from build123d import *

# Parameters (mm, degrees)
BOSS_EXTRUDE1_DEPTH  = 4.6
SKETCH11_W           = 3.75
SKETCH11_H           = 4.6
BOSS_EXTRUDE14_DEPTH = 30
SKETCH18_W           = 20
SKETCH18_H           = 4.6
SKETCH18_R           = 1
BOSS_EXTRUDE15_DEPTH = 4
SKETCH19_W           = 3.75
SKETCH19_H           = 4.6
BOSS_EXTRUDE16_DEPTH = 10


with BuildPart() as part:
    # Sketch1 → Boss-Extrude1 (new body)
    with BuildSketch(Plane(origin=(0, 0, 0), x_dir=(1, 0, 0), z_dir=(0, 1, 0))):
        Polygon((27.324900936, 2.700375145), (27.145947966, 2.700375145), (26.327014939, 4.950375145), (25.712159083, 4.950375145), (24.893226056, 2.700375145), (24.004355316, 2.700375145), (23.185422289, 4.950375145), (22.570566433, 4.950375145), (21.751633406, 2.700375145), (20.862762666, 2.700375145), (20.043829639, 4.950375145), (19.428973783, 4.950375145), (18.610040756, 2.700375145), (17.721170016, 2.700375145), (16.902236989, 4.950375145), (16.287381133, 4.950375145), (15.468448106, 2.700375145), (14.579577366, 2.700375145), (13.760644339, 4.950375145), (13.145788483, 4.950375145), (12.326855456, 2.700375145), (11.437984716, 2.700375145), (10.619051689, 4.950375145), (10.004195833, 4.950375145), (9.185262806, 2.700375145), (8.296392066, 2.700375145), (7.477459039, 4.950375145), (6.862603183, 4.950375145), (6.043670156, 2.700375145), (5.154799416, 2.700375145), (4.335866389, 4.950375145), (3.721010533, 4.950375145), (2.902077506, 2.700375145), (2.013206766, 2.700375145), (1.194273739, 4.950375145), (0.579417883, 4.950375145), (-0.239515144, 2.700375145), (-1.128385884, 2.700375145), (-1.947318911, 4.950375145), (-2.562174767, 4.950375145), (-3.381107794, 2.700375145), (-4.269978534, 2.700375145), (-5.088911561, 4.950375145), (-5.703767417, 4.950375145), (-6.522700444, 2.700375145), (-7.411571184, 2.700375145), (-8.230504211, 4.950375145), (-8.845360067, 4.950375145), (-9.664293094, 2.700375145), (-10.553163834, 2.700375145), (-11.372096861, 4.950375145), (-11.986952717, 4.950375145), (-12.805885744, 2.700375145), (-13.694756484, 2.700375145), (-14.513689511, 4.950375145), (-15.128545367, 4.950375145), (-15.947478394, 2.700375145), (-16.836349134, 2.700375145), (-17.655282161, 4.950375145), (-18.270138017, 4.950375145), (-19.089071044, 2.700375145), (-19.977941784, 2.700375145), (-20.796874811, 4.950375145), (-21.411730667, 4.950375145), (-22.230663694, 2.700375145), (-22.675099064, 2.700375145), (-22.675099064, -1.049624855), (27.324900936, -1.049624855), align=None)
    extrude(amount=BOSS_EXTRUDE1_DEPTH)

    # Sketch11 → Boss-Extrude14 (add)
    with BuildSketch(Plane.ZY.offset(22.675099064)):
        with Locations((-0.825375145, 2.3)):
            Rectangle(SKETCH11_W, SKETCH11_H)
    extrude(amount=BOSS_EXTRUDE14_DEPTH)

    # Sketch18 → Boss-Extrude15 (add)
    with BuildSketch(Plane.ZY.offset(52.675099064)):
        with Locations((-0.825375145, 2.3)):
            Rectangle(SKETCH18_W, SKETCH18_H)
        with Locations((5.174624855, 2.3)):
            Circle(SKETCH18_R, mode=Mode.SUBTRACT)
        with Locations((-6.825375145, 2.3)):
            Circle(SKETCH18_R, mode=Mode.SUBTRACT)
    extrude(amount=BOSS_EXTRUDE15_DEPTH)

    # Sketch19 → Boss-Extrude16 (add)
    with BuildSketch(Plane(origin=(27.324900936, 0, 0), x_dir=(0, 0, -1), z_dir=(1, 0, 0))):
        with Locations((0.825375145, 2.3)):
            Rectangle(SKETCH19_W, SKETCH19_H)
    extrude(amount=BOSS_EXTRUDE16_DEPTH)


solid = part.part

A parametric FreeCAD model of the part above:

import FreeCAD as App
import Part
import Sketcher

V = App.Vector
Q = App.Units.Quantity


def add_polygon(sketch, points):
    """Adds a closed chain of lines whose ends are joined by coincident constraints."""
    first, n = sketch.GeometryCount, len(points)
    for a, b in zip(points, points[1:] + points[:1]):
        sketch.addGeometry(Part.LineSegment(App.Vector(*a, 0), App.Vector(*b, 0)), False)
    for i in range(n):
        sketch.addConstraint(Sketcher.Constraint("Coincident", first + i, 2, first + (i + 1) % n, 1))

doc = App.newDocument("Part")
body = doc.addObject("PartDesign::Body", "Body")

sketch1 = doc.addObject("Sketcher::SketchObject", "Sketch")
body.addObject(sketch1)
sketch1.AttachmentSupport = (doc.XZ_Plane, [""])
sketch1.MapMode = "FlatFace"
add_polygon(sketch1, [(27.324901, -2.700375), (27.145948, -2.700375), (26.327015, -4.950375), (25.712159, -4.950375), (24.893226, -2.700375), (24.004355, -2.700375), (23.185422, -4.950375), (22.570566, -4.950375), (21.751633, -2.700375), (20.862763, -2.700375), (20.04383, -4.950375), (19.428974, -4.950375), (18.610041, -2.700375), (17.72117, -2.700375), (16.902237, -4.950375), (16.287381, -4.950375), (15.468448, -2.700375), (14.579577, -2.700375), (13.760644, -4.950375), (13.145788, -4.950375), (12.326855, -2.700375), (11.437985, -2.700375), (10.619052, -4.950375), (10.004196, -4.950375), (9.185263, -2.700375), (8.296392, -2.700375), (7.477459, -4.950375), (6.862603, -4.950375), (6.04367, -2.700375), (5.154799, -2.700375), (4.335866, -4.950375), (3.721011, -4.950375), (2.902078, -2.700375), (2.013207, -2.700375), (1.194274, -4.950375), (0.579418, -4.950375), (-0.239515, -2.700375), (-1.128386, -2.700375), (-1.947319, -4.950375), (-2.562175, -4.950375), (-3.381108, -2.700375), (-4.269979, -2.700375), (-5.088912, -4.950375), (-5.703767, -4.950375), (-6.5227, -2.700375), (-7.411571, -2.700375), (-8.230504, -4.950375), (-8.84536, -4.950375), (-9.664293, -2.700375), (-10.553164, -2.700375), (-11.372097, -4.950375), (-11.986953, -4.950375), (-12.805886, -2.700375), (-13.694756, -2.700375), (-14.51369, -4.950375), (-15.128545, -4.950375), (-15.947478, -2.700375), (-16.836349, -2.700375), (-17.655282, -4.950375), (-18.270138, -4.950375), (-19.089071, -2.700375), (-19.977942, -2.700375), (-20.796875, -4.950375), (-21.411731, -4.950375), (-22.230664, -2.700375), (-22.675099, -2.700375), (-22.675099, 1.049625), (27.324901, 1.049625)])
sketch1.addConstraint([
    Sketcher.Constraint("Horizontal", 0),
    Sketcher.Constraint("Horizontal", 2),
    Sketcher.Constraint("Horizontal", 4),
    Sketcher.Constraint("Horizontal", 6),
    Sketcher.Constraint("Horizontal", 8),
    Sketcher.Constraint("Horizontal", 10),
    Sketcher.Constraint("Horizontal", 12),
    Sketcher.Constraint("Horizontal", 14),
    Sketcher.Constraint("Horizontal", 16),
    Sketcher.Constraint("Horizontal", 18),
    Sketcher.Constraint("Horizontal", 20),
    Sketcher.Constraint("Horizontal", 22),
    Sketcher.Constraint("Horizontal", 24),
    Sketcher.Constraint("Horizontal", 26),
    Sketcher.Constraint("Horizontal", 28),
    Sketcher.Constraint("Horizontal", 30),
    Sketcher.Constraint("Horizontal", 32),
    Sketcher.Constraint("Horizontal", 34),
    Sketcher.Constraint("Horizontal", 36),
    Sketcher.Constraint("Horizontal", 38),
    Sketcher.Constraint("Horizontal", 40),
    Sketcher.Constraint("Horizontal", 42),
    Sketcher.Constraint("Horizontal", 44),
    Sketcher.Constraint("Horizontal", 46),
    Sketcher.Constraint("Horizontal", 48),
    Sketcher.Constraint("Horizontal", 50),
    Sketcher.Constraint("Horizontal", 52),
    Sketcher.Constraint("Horizontal", 54),
    Sketcher.Constraint("Horizontal", 56),
    Sketcher.Constraint("Horizontal", 58),
    Sketcher.Constraint("Horizontal", 60),
    Sketcher.Constraint("Horizontal", 62),
    Sketcher.Constraint("Horizontal", 64),
    Sketcher.Constraint("Vertical", 65),
    Sketcher.Constraint("Horizontal", 66),
    Sketcher.Constraint("Vertical", 67),
    Sketcher.Constraint("Parallel", 1, 5),
    Sketcher.Constraint("Parallel", 3, 7),
    Sketcher.Constraint("Parallel", 5, 9),
    Sketcher.Constraint("Parallel", 7, 11),
    Sketcher.Constraint("Parallel", 9, 13),
    Sketcher.Constraint("Parallel", 11, 15),
    Sketcher.Constraint("Parallel", 13, 17),
    Sketcher.Constraint("Parallel", 15, 19),
    Sketcher.Constraint("Parallel", 17, 21),
    Sketcher.Constraint("Parallel", 19, 23),
    Sketcher.Constraint("Parallel", 21, 25),
    Sketcher.Constraint("Parallel", 23, 27),
    Sketcher.Constraint("Parallel", 25, 29),
    Sketcher.Constraint("Parallel", 27, 31),
    Sketcher.Constraint("Parallel", 29, 33),
    Sketcher.Constraint("Parallel", 31, 35),
    Sketcher.Constraint("Parallel", 33, 37),
    Sketcher.Constraint("Parallel", 35, 39),
    Sketcher.Constraint("Parallel", 37, 41),
    Sketcher.Constraint("Parallel", 39, 43),
    Sketcher.Constraint("Parallel", 41, 45),
    Sketcher.Constraint("Parallel", 43, 47),
    Sketcher.Constraint("Parallel", 45, 49),
    Sketcher.Constraint("Parallel", 47, 51),
    Sketcher.Constraint("Parallel", 49, 53),
    Sketcher.Constraint("Parallel", 51, 55),
    Sketcher.Constraint("Parallel", 53, 57),
    Sketcher.Constraint("Parallel", 55, 59),
    Sketcher.Constraint("Parallel", 57, 61),
    Sketcher.Constraint("Parallel", 59, 63),
    Sketcher.Constraint("Horizontal", 0, 2, 3, 2),
    Sketcher.Constraint("Horizontal", 2, 2, 5, 2),
    Sketcher.Constraint("Horizontal", 4, 2, 7, 2),
    Sketcher.Constraint("Horizontal", 6, 2, 9, 2),
    Sketcher.Constraint("Horizontal", 8, 2, 11, 2),
    Sketcher.Constraint("Horizontal", 10, 2, 13, 2),
    Sketcher.Constraint("Horizontal", 12, 2, 15, 2),
    Sketcher.Constraint("Horizontal", 14, 2, 17, 2),
    Sketcher.Constraint("Horizontal", 16, 2, 19, 2),
    Sketcher.Constraint("Horizontal", 18, 2, 21, 2),
    Sketcher.Constraint("Horizontal", 20, 2, 23, 2),
    Sketcher.Constraint("Horizontal", 22, 2, 25, 2),
    Sketcher.Constraint("Horizontal", 24, 2, 27, 2),
    Sketcher.Constraint("Horizontal", 26, 2, 29, 2),
    Sketcher.Constraint("Horizontal", 28, 2, 31, 2),
    Sketcher.Constraint("Horizontal", 30, 2, 33, 2),
    Sketcher.Constraint("Horizontal", 32, 2, 35, 2),
    Sketcher.Constraint("Horizontal", 34, 2, 37, 2),
    Sketcher.Constraint("Horizontal", 36, 2, 39, 2),
    Sketcher.Constraint("Horizontal", 38, 2, 41, 2),
    Sketcher.Constraint("Horizontal", 40, 2, 43, 2),
    Sketcher.Constraint("Horizontal", 42, 2, 45, 2),
    Sketcher.Constraint("Horizontal", 44, 2, 47, 2),
    Sketcher.Constraint("Horizontal", 46, 2, 49, 2),
    Sketcher.Constraint("Horizontal", 48, 2, 51, 2),
    Sketcher.Constraint("Horizontal", 50, 2, 53, 2),
    Sketcher.Constraint("Horizontal", 52, 2, 55, 2),
    Sketcher.Constraint("Horizontal", 54, 2, 57, 2),
    Sketcher.Constraint("Horizontal", 56, 2, 59, 2),
    Sketcher.Constraint("Horizontal", 58, 2, 61, 2),
    Sketcher.Constraint("Horizontal", 60, 2, 63, 2),
    Sketcher.Constraint("Equal", 2, 6),
    Sketcher.Constraint("Equal", 4, 8),
    Sketcher.Constraint("Equal", 6, 10),
    Sketcher.Constraint("Equal", 8, 12),
    Sketcher.Constraint("Equal", 10, 14),
    Sketcher.Constraint("Equal", 12, 16),
    Sketcher.Constraint("Equal", 14, 18),
    Sketcher.Constraint("Equal", 16, 20),
    Sketcher.Constraint("Equal", 18, 22),
    Sketcher.Constraint("Equal", 20, 24),
    Sketcher.Constraint("Equal", 22, 26),
    Sketcher.Constraint("Equal", 24, 28),
    Sketcher.Constraint("Equal", 26, 30),
    Sketcher.Constraint("Equal", 28, 32),
    Sketcher.Constraint("Equal", 30, 34),
    Sketcher.Constraint("Equal", 32, 36),
    Sketcher.Constraint("Equal", 34, 38),
    Sketcher.Constraint("Equal", 36, 40),
    Sketcher.Constraint("Equal", 38, 42),
    Sketcher.Constraint("Equal", 40, 44),
    Sketcher.Constraint("Equal", 42, 46),
    Sketcher.Constraint("Equal", 44, 48),
    Sketcher.Constraint("Equal", 46, 50),
    Sketcher.Constraint("Equal", 48, 52),
    Sketcher.Constraint("Equal", 50, 54),
    Sketcher.Constraint("Equal", 52, 56),
    Sketcher.Constraint("Equal", 54, 58),
    Sketcher.Constraint("Equal", 56, 60),
    Sketcher.Constraint("Equal", 58, 62),
    Sketcher.Constraint("Equal", 1, 3),
    Sketcher.Constraint("DistanceX", 66, 1, 66, 2, 50.0),
    Sketcher.Constraint("Angle", 1, Q("-110 deg")),
    Sketcher.Constraint("DistanceY", 65, 1, 65, 2, 3.75),
    Sketcher.Constraint("Distance", 1, 2.3944),
    Sketcher.Constraint("DistanceX", 4, 2, 4, 1, 0.888871),
    Sketcher.Constraint("DistanceX", -1, 1, 28, 2, 5.154799),
    Sketcher.Constraint("DistanceX", 43, 2, -1, 1, 6.5227),
    Sketcher.Constraint("DistanceX", 64, 2, -1, 1, 22.675099),
    Sketcher.Constraint("DistanceY", 0, 2, -1, 1, 2.700375),
])
pad1 = doc.addObject("PartDesign::Pad", "Pad")
body.addObject(pad1)
pad1.Profile = sketch1
pad1.Length = 4.6
pad1.Reversed = True

sketch2 = doc.addObject("Sketcher::SketchObject", "Sketch001")
body.addObject(sketch2)
sketch2.AttachmentSupport = (doc.YZ_Plane, [""])
sketch2.MapMode = "FlatFace"
sketch2.AttachmentOffset = App.Placement(V(0, 0, -22.675099), App.Rotation())
add_polygon(sketch2, [(4.6, -2.700375), (0, -2.700375), (0, 1.049625), (4.6, 1.049625)])
sketch2.addConstraint([
    Sketcher.Constraint("Horizontal", 0),
    Sketcher.Constraint("Vertical", 1),
    Sketcher.Constraint("Horizontal", 2),
    Sketcher.Constraint("Vertical", 3),
    Sketcher.Constraint("PointOnObject", 0, 2, -2),
    Sketcher.Constraint("DistanceX", 0, 2, 0, 1, 4.6),
    Sketcher.Constraint("DistanceY", 1, 1, 1, 2, 3.75),
    Sketcher.Constraint("DistanceY", 0, 2, -1, 1, 2.700375),
])
pad2 = doc.addObject("PartDesign::Pad", "Pad001")
body.addObject(pad2)
pad2.Profile = sketch2
pad2.Length = 30
pad2.Reversed = True

sketch3 = doc.addObject("Sketcher::SketchObject", "Sketch002")
body.addObject(sketch3)
sketch3.AttachmentSupport = (doc.YZ_Plane, [""])
sketch3.MapMode = "FlatFace"
sketch3.AttachmentOffset = App.Placement(V(0, 0, -52.675099), App.Rotation())
add_polygon(sketch3, [(4.6, -10.825375), (0, -10.825375), (0, 9.174625), (4.6, 9.174625)])
sketch3.addGeometry(Part.Circle(V(2.3, -6.825375, 0), V(0, 0, 1), 1), False)
sketch3.addGeometry(Part.Circle(V(2.3, 5.174625, 0), V(0, 0, 1), 1), False)
sketch3.addConstraint([
    Sketcher.Constraint("Horizontal", 0),
    Sketcher.Constraint("Vertical", 1),
    Sketcher.Constraint("Horizontal", 2),
    Sketcher.Constraint("Vertical", 3),
    Sketcher.Constraint("Equal", 4, 5),
    Sketcher.Constraint("PointOnObject", 0, 2, -2),
    Sketcher.Constraint("Vertical", 4, 3, 5, 3),
    Sketcher.Constraint("Diameter", 4, 2.0),
    Sketcher.Constraint("DistanceY", 1, 1, 1, 2, 20.0),
    Sketcher.Constraint("DistanceX", 0, 2, 0, 1, 4.6),
    Sketcher.Constraint("DistanceY", 4, 3, 5, 3, 12.0),
    Sketcher.Constraint("DistanceY", 0, 2, 4, 3, 4.0),
    Sketcher.Constraint("DistanceX", -1, 1, 4, 3, 2.3),
    Sketcher.Constraint("DistanceY", 4, 3, -1, 1, 6.825375),
])
pad3 = doc.addObject("PartDesign::Pad", "Pad002")
body.addObject(pad3)
pad3.Profile = sketch3
pad3.Length = 4
pad3.Reversed = True

sketch4 = doc.addObject("Sketcher::SketchObject", "Sketch003")
body.addObject(sketch4)
sketch4.AttachmentSupport = (doc.YZ_Plane, [""])
sketch4.MapMode = "FlatFace"
sketch4.AttachmentOffset = App.Placement(V(0, 0, 27.324901), App.Rotation())
add_polygon(sketch4, [(4.6, 1.049625), (0, 1.049625), (0, -2.700375), (4.6, -2.700375)])
sketch4.addConstraint([
    Sketcher.Constraint("Horizontal", 0),
    Sketcher.Constraint("Vertical", 1),
    Sketcher.Constraint("Horizontal", 2),
    Sketcher.Constraint("Vertical", 3),
    Sketcher.Constraint("PointOnObject", 0, 2, -2),
    Sketcher.Constraint("DistanceX", 0, 2, 0, 1, 4.6),
    Sketcher.Constraint("DistanceY", 1, 2, 1, 1, 3.75),
    Sketcher.Constraint("DistanceY", -1, 1, 0, 2, 1.049625),
])
pad4 = doc.addObject("PartDesign::Pad", "Pad003")
body.addObject(pad4)
pad4.Profile = sketch4
pad4.Length = 10

doc.recompute()
